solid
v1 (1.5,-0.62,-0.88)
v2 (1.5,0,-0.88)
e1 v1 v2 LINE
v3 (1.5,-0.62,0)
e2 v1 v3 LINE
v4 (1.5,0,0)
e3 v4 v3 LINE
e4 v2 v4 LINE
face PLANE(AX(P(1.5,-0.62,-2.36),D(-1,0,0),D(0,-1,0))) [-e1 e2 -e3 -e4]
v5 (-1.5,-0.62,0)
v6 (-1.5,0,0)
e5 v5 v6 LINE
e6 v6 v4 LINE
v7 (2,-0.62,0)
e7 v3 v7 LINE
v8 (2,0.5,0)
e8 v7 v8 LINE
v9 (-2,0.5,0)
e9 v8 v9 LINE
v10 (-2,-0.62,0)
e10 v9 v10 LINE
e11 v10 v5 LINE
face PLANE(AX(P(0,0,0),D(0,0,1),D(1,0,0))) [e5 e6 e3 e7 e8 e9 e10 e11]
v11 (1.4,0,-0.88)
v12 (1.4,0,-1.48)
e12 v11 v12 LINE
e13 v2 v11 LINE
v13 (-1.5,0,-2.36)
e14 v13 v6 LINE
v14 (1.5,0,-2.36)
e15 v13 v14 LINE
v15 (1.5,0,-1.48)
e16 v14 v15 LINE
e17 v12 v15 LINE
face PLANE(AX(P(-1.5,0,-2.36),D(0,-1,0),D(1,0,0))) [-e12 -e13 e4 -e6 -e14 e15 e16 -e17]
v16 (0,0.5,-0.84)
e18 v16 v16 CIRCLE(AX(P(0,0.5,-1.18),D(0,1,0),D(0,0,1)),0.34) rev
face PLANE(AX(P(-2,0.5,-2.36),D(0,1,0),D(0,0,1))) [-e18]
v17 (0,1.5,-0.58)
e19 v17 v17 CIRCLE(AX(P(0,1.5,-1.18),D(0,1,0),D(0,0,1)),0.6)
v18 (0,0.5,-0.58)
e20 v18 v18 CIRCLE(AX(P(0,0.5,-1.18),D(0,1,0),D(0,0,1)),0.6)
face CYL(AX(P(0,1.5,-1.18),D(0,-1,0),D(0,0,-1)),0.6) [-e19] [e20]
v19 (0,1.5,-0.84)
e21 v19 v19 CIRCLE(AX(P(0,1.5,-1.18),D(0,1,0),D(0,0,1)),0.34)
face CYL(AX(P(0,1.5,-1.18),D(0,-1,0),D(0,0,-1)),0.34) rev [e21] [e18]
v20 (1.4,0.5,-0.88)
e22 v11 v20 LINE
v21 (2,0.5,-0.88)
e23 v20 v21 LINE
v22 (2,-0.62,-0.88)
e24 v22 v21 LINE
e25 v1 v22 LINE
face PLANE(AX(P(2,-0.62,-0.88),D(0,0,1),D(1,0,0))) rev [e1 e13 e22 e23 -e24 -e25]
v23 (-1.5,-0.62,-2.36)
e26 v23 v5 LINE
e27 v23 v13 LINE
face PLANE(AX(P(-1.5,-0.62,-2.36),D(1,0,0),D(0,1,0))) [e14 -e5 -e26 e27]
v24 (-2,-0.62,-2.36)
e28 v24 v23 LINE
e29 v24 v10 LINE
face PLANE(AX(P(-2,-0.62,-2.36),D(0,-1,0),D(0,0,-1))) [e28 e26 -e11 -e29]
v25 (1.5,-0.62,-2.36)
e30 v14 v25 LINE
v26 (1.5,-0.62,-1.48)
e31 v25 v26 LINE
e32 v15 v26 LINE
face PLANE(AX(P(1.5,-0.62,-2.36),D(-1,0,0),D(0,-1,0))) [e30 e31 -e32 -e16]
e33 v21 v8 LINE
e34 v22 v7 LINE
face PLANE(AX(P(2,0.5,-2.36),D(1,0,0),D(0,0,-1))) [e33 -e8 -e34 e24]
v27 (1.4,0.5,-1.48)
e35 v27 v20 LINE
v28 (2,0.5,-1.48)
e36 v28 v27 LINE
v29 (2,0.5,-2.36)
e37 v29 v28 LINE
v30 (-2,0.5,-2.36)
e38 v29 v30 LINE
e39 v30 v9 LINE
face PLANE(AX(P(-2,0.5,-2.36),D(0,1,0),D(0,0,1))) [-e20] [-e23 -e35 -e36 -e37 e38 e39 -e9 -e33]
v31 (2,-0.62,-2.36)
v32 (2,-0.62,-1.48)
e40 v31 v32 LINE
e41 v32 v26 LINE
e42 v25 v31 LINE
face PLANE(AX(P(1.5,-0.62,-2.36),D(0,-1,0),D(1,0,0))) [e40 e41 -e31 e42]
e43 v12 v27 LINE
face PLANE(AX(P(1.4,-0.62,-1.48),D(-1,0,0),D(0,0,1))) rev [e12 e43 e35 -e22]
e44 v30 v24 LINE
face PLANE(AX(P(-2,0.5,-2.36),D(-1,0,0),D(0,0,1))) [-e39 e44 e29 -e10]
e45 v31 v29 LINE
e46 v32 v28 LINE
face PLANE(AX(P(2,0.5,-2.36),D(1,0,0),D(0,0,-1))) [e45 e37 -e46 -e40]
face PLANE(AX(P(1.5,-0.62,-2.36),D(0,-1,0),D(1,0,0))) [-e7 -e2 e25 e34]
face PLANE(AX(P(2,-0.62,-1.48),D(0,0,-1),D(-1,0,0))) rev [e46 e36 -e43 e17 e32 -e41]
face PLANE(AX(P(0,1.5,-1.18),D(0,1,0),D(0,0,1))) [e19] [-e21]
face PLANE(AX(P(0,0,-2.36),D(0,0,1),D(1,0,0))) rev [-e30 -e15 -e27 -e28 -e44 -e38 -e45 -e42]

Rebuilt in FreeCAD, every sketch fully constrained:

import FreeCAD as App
import Part
import Sketcher

V = App.Vector


def add_polygon(sketch, points):
    """Adds a closed chain of lines whose ends are joined by coincident constraints."""
    first, n = sketch.GeometryCount, len(points)
    for a, b in zip(points, points[1:] + points[:1]):
        sketch.addGeometry(Part.LineSegment(App.Vector(*a, 0), App.Vector(*b, 0)), False)
    for i in range(n):
        sketch.addConstraint(Sketcher.Constraint("Coincident", first + i, 2, first + (i + 1) % n, 1))

doc = App.newDocument("Part")
body = doc.addObject("PartDesign::Body", "Body")

sketch1 = body.newObject("Sketcher::SketchObject", "Sketch")
sketch1.AttachmentSupport = (doc.getObject("XY_Plane"), [""])
sketch1.MapMode = "FlatFace"
add_polygon(sketch1, [(1.5, -0.6), (2, -0.6), (2, 0.5), (-2, 0.5), (-2, -0.6), (-1.5, -0.6), (-1.5, 0), (1.5, 0)])
sketch1.addConstraint([
    Sketcher.Constraint("Horizontal", 0),
    Sketcher.Constraint("Vertical", 1),
    Sketcher.Constraint("Horizontal", 2),
    Sketcher.Constraint("Vertical", 3),
    Sketcher.Constraint("Horizontal", 4),
    Sketcher.Constraint("Vertical", 5),
    Sketcher.Constraint("Horizontal", 6),
    Sketcher.Constraint("Vertical", 7),
    Sketcher.Constraint("Symmetric", 5, 2, 6, 2, -1, 1),
    Sketcher.Constraint("Symmetric", 0, 2, 3, 2, -2),
    Sketcher.Constraint("DistanceX", 2, 2, 2, 1, 4.0),
    Sketcher.Constraint("DistanceX", 6, 1, 6, 2, 3.0),
    Sketcher.Constraint("DistanceY", 1, 1, 1, 2, 1.12),
    Sketcher.Constraint("DistanceY", 5, 1, 5, 2, 0.62),
])
pad1 = body.newObject("PartDesign::Pad", "Pad")
pad1.Profile = sketch1
pad1.Length = 2.36
pad1.Reversed = True

sketch2 = body.newObject("Sketcher::SketchObject", "Sketch001")
sketch2.AttachmentSupport = (doc.getObject("XZ_Plane"), [""])
sketch2.MapMode = "FlatFace"
sketch2.AttachmentOffset = App.Placement(V(0, 0, -0.5), App.Rotation())
add_polygon(sketch2, [(1.4, -1.5), (1.4, -0.9), (2, -0.9), (2, -1.5)])
sketch2.addConstraint([
    Sketcher.Constraint("Vertical", 0),
    Sketcher.Constraint("Horizontal", 1),
    Sketcher.Constraint("Vertical", 2),
    Sketcher.Constraint("Horizontal", 3),
    Sketcher.Constraint("Equal", 3, 0),
    Sketcher.Constraint("DistanceX", 1, 1, 1, 2, 0.6),
    Sketcher.Constraint("DistanceX", -1, 1, 1, 2, 2.0),
    Sketcher.Constraint("DistanceY", 0, 2, -1, 1, 0.88),
])
pocket1 = body.newObject("PartDesign::Pocket", "Pocket")
pocket1.Profile = sketch2
pocket1.Type = "ThroughAll"
pocket1.Reversed = True

sketch3 = body.newObject("Sketcher::SketchObject", "Sketch002")
sketch3.AttachmentSupport = (doc.getObject("XZ_Plane"), [""])
sketch3.MapMode = "FlatFace"
sketch3.AttachmentOffset = App.Placement(V(0, 0, -0.5), App.Rotation())
sketch3.addGeometry([
    Part.Circle(V(0, -1.18, 0), V(0, 0, 1), 0.6),
    Part.Circle(V(0, -1.18, 0), V(0, 0, 1), 0.34),
], False)
sketch3.addConstraint([
    Sketcher.Constraint("Coincident", 1, 3, 0, 3),
    Sketcher.Constraint("PointOnObject", 0, 3, -2),
    Sketcher.Constraint("Diameter", 0, 1.2),
    Sketcher.Constraint("Diameter", 1, 0.68),
    Sketcher.Constraint("DistanceY", 0, 3, -1, 1, 1.18),
])
pad2 = body.newObject("PartDesign::Pad", "Pad001")
pad2.Profile = sketch3
pad2.Length = 1
pad2.Reversed = True

doc.recompute()
